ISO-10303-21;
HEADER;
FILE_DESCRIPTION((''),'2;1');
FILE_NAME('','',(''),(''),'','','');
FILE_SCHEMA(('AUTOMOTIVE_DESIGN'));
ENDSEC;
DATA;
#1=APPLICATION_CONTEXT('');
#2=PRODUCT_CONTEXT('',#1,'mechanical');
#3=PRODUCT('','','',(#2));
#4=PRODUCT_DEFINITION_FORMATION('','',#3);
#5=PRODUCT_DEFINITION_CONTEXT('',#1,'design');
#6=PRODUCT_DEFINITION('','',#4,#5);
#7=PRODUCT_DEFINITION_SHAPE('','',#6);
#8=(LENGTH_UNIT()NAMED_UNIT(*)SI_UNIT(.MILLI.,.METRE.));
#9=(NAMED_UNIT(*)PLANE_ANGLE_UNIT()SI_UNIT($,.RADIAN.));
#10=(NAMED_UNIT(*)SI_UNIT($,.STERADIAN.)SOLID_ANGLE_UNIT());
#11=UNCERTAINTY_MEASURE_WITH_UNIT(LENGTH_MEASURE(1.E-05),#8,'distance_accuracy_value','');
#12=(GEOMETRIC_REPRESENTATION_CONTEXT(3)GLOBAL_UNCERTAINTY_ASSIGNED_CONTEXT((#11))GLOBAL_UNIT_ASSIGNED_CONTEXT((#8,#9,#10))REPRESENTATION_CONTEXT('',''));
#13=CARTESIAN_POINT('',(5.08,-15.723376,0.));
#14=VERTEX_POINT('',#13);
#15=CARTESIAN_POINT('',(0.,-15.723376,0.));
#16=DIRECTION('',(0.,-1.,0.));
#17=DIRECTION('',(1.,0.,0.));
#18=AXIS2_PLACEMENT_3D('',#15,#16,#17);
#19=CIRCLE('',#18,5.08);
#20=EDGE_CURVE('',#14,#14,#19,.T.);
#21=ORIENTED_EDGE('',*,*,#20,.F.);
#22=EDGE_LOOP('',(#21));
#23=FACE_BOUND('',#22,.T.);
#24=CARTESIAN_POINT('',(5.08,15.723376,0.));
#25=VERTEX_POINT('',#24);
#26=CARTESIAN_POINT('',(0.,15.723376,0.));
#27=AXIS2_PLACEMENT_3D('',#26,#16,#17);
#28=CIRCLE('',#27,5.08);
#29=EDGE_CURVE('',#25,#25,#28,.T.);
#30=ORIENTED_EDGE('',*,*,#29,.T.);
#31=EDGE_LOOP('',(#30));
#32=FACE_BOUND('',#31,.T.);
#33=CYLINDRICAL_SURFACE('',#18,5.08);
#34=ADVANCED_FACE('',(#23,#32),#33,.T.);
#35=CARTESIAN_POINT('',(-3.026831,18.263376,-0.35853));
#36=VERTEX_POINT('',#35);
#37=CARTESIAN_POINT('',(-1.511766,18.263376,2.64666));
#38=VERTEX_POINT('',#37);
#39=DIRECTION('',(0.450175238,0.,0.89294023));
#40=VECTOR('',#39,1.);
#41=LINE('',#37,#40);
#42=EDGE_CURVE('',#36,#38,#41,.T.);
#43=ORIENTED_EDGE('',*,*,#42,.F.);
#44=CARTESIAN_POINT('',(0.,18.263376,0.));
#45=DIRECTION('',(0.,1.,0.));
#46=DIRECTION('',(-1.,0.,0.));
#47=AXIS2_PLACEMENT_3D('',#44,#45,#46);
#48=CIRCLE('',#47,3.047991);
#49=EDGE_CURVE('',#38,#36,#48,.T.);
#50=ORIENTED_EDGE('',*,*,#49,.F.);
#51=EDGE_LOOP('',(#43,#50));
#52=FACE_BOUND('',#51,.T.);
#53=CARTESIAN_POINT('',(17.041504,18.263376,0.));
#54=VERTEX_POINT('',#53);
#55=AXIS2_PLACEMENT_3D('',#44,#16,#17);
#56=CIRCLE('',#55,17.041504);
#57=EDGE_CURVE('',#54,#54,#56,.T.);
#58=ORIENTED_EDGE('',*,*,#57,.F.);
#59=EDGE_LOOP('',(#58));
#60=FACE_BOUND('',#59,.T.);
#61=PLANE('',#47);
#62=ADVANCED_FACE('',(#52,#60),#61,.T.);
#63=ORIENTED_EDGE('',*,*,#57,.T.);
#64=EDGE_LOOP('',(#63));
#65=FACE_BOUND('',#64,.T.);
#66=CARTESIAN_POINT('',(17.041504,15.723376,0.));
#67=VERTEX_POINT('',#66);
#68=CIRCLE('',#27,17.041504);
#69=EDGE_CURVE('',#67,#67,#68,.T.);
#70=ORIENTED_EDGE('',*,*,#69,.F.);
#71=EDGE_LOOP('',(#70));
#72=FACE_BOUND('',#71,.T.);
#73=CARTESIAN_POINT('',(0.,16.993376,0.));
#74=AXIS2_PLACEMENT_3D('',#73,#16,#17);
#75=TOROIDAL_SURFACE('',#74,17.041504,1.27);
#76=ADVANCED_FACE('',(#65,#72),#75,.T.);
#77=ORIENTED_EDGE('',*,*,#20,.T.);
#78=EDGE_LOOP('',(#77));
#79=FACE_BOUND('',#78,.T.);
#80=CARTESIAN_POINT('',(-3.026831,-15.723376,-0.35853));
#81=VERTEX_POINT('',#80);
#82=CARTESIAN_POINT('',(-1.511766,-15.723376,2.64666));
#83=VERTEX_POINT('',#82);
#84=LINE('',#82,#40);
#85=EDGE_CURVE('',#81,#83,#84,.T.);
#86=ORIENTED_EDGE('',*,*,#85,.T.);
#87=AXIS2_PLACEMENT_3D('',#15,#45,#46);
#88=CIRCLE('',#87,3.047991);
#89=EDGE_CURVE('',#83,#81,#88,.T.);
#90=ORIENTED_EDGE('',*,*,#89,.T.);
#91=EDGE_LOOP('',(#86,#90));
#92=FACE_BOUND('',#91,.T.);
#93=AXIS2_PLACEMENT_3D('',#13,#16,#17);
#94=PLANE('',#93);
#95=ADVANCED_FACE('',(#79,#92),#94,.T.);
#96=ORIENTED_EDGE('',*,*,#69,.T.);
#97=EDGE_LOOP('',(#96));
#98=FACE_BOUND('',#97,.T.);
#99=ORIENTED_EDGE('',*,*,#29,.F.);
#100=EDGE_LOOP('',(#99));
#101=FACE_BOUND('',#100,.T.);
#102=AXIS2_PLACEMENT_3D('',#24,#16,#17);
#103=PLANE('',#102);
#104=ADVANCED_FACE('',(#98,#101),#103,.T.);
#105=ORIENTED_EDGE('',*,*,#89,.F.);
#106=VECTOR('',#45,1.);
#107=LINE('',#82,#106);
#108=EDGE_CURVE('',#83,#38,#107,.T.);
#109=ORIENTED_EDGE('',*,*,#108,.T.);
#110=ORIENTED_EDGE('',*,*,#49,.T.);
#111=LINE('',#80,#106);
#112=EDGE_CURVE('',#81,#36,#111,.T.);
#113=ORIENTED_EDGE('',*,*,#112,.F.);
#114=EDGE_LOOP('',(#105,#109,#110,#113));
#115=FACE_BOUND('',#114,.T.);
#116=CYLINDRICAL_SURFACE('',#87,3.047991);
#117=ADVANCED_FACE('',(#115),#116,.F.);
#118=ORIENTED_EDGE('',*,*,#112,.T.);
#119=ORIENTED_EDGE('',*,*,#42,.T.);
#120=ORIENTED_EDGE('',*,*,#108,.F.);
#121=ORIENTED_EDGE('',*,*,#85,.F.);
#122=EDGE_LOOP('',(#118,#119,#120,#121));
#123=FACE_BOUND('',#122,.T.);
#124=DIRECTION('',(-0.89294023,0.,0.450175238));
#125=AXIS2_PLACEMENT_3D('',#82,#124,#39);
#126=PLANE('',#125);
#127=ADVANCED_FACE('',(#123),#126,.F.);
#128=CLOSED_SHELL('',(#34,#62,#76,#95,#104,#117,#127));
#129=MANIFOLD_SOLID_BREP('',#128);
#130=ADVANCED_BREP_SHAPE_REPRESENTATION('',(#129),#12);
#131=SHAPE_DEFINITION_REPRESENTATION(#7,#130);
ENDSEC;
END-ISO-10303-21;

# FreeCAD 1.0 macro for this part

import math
import FreeCAD as App
import Part
import Sketcher

V = App.Vector
Q = App.Units.Quantity

doc = App.newDocument("Part")
params = doc.addObject("Spreadsheet::Sheet", "Params")
for row, (alias, value) in enumerate([
    ("sketch1_radius", "0.05 in"),
    ("sketch1_width", "0.2 in"),
    ("revolution_angle", "360 deg"),
], start=1):
    params.set(f"A{row}", alias)
    params.set(f"B{row}", "=" + value)
    params.setAlias(f"B{row}", alias)

body = doc.addObject("PartDesign::Body", "Body")

# Sketch on XY plane
sketch1 = body.newObject("Sketcher::SketchObject", "Sketch")
sketch1.AttachmentSupport = (doc.getObject("XY_Plane"), [""])
sketch1.MapMode = "FlatFace"
sketch1.addGeometry([
    Part.LineSegment(V(0, 18.3, 0), V(0, -15.7, 0)),  # 0
    Part.LineSegment(V(0, -15.7, 0), V(5.1, -15.7, 0)),  # 1
    Part.LineSegment(V(5.1, -15.7, 0), V(5.1, 15.7, 0)),  # 2
    Part.LineSegment(V(5.1, 15.7, 0), V(17, 15.7, 0)),  # 3
    Part.ArcOfCircle(Part.Circle(V(17, 17, 0), V(0, 0, 1), 1.3), math.radians(-90), math.radians(90)),  # 4
    Part.LineSegment(V(17, 18.3, 0), V(0, 18.3, 0)),  # 5
], False)
sketch1.addConstraint([
    Sketcher.Constraint("Coincident", 0, 2, 1, 1),
    Sketcher.Constraint("Coincident", 1, 2, 2, 1),
    Sketcher.Constraint("Coincident", 2, 2, 3, 1),
    Sketcher.Constraint("Tangent", 3, 2, 4, 1),
    Sketcher.Constraint("Tangent", 4, 2, 5, 1),
    Sketcher.Constraint("Coincident", 5, 2, 0, 1),
    Sketcher.Constraint("Vertical", 0),
    Sketcher.Constraint("Horizontal", 1),
    Sketcher.Constraint("Vertical", 2),
    Sketcher.Constraint("Horizontal", 3),
    Sketcher.Constraint("Horizontal", 5),
    Sketcher.Constraint("PointOnObject", 0, 2, -2),
    Sketcher.Constraint("Radius", 4, Q("0.05 in")),
    Sketcher.Constraint("DistanceX", 1, 1, 1, 2, Q("0.2 in")),
    Sketcher.Constraint("DistanceX", 3, 1, 3, 2, 11.961504),
    Sketcher.Constraint("DistanceY", 0, 2, 0, 1, 33.986753),
    Sketcher.Constraint("DistanceY", -1, 1, 4, 3, 16.993376),
])
sketch1.setExpression("Constraints[12]", "Params.sketch1_radius")
sketch1.setExpression("Constraints[13]", "Params.sketch1_width")
revolution = body.newObject("PartDesign::Revolution", "Revolution")
revolution.Profile = sketch1
revolution.ReferenceAxis = (sketch1, ["V_Axis"])
revolution.setExpression("Angle", "Params.revolution_angle")

# Sketch on XZ plane
sketch2 = body.newObject("Sketcher::SketchObject", "Sketch001")
sketch2.AttachmentSupport = (doc.getObject("XZ_Plane"), [""])
sketch2.MapMode = "FlatFace"
sketch2.AttachmentOffset = App.Placement(V(0, 0, -18.263376), App.Rotation())
sketch2.addGeometry([
    Part.LineSegment(V(-3, -0.4, 0), V(-1.5, 2.6, 0)),
    Part.ArcOfCircle(Part.Circle(V(0, 0, 0), V(0, 0, 1), 3), math.radians(-173), math.radians(120)),
], False)
sketch2.addConstraint([
    Sketcher.Constraint("Coincident", 0, 1, 1, 1),
    Sketcher.Constraint("Coincident", 1, 2, 0, 2),
    Sketcher.Constraint("Coincident", 1, 3, -1, 1),
    Sketcher.Constraint("Radius", 1, 3.047991),
    Sketcher.Constraint("Distance", 0, Q("0.1325 in")),
    Sketcher.Constraint("DistanceX", 0, 1, -1, 1, 3.026831),
])
pocket1 = body.newObject("PartDesign::Pocket", "Pocket")
pocket1.Profile = sketch2
pocket1.Type = "ThroughAll"
pocket1.Reversed = True

doc.recompute()
